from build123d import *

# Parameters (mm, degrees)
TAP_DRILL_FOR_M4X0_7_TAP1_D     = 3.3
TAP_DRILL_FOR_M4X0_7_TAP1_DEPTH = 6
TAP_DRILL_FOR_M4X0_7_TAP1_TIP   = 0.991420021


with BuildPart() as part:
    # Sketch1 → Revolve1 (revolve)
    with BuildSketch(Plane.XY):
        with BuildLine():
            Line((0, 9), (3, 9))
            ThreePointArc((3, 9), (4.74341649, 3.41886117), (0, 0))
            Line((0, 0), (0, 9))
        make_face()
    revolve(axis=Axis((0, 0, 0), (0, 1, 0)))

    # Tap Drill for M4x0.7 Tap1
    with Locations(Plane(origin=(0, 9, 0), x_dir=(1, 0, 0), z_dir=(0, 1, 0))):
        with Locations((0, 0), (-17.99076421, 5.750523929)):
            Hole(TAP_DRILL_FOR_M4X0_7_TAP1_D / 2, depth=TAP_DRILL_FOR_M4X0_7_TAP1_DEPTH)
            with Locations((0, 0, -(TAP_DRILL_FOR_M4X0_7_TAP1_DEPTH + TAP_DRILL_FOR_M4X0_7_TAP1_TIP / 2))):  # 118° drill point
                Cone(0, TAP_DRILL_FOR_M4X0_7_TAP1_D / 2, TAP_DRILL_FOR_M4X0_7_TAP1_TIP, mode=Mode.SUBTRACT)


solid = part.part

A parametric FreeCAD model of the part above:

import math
import FreeCAD as App
import Part
import Sketcher

V = App.Vector

doc = App.newDocument("Part")
body = doc.addObject("PartDesign::Body", "Body")

sketch1 = body.newObject("Sketcher::SketchObject", "Sketch")
sketch1.AttachmentSupport = (doc.getObject("XY_Plane"), [""])
sketch1.MapMode = "FlatFace"
sketch1.addGeometry([
    Part.LineSegment(V(3, 9, 0), V(0, 9, 0)),
    Part.LineSegment(V(0, 9, 0), V(0, 0, 0)),
    Part.ArcOfCircle(Part.Circle(V(0, 5, 0), V(0, 0, 1), 5), math.radians(-90), math.radians(53.130102)),
], False)
sketch1.addConstraint([
    Sketcher.Constraint("Coincident", 0, 2, 1, 1),
    Sketcher.Constraint("Coincident", 1, 2, 2, 1),
    Sketcher.Constraint("Coincident", 2, 2, 0, 1),
    Sketcher.Constraint("Horizontal", 0),
    Sketcher.Constraint("Vertical", 1),
    Sketcher.Constraint("Coincident", 1, 2, -1, 1),
    Sketcher.Constraint("PointOnObject", 2, 3, -2),
    Sketcher.Constraint("Radius", 2, 5.0),
    Sketcher.Constraint("DistanceX", 0, 2, 0, 1, 3.0),
])
revolution = body.newObject("PartDesign::Revolution", "Revolution")
revolution.Profile = sketch1
revolution.ReferenceAxis = (sketch1, ["V_Axis"])
revolution.Angle = 360

sketch2 = body.newObject("Sketcher::SketchObject", "Sketch001")
sketch2.AttachmentSupport = (doc.getObject("XZ_Plane"), [""])
sketch2.MapMode = "FlatFace"
sketch2.AttachmentOffset = App.Placement(V(0, 0, -9), App.Rotation())
sketch2.addGeometry([
    Part.Circle(V(0, 0, 0), V(0, 0, 1), 1.65),
    Part.Circle(V(-17.990764, -5.750524, 0), V(0, 0, 1), 1.65),
], False)
sketch2.addConstraint([
    Sketcher.Constraint("Coincident", 0, 3, -1, 1),
    Sketcher.Constraint("Equal", 0, 1),
    Sketcher.Constraint("Diameter", 0, 3.3),
    Sketcher.Constraint("DistanceX", 1, 3, -1, 1, 17.990764),
    Sketcher.Constraint("DistanceY", 1, 3, -1, 1, 5.750524),
])
doc.recompute()
hole = body.newObject("PartDesign::Hole", "Hole")
hole.Profile = sketch2
hole.ThreadType = "None"
hole.Diameter = 3.3
hole.DepthType = "Dimension"
hole.Depth = 6
hole.DrillPoint = "Angled"
hole.DrillPointAngle = 118
hole.Reversed = True

doc.recompute()
